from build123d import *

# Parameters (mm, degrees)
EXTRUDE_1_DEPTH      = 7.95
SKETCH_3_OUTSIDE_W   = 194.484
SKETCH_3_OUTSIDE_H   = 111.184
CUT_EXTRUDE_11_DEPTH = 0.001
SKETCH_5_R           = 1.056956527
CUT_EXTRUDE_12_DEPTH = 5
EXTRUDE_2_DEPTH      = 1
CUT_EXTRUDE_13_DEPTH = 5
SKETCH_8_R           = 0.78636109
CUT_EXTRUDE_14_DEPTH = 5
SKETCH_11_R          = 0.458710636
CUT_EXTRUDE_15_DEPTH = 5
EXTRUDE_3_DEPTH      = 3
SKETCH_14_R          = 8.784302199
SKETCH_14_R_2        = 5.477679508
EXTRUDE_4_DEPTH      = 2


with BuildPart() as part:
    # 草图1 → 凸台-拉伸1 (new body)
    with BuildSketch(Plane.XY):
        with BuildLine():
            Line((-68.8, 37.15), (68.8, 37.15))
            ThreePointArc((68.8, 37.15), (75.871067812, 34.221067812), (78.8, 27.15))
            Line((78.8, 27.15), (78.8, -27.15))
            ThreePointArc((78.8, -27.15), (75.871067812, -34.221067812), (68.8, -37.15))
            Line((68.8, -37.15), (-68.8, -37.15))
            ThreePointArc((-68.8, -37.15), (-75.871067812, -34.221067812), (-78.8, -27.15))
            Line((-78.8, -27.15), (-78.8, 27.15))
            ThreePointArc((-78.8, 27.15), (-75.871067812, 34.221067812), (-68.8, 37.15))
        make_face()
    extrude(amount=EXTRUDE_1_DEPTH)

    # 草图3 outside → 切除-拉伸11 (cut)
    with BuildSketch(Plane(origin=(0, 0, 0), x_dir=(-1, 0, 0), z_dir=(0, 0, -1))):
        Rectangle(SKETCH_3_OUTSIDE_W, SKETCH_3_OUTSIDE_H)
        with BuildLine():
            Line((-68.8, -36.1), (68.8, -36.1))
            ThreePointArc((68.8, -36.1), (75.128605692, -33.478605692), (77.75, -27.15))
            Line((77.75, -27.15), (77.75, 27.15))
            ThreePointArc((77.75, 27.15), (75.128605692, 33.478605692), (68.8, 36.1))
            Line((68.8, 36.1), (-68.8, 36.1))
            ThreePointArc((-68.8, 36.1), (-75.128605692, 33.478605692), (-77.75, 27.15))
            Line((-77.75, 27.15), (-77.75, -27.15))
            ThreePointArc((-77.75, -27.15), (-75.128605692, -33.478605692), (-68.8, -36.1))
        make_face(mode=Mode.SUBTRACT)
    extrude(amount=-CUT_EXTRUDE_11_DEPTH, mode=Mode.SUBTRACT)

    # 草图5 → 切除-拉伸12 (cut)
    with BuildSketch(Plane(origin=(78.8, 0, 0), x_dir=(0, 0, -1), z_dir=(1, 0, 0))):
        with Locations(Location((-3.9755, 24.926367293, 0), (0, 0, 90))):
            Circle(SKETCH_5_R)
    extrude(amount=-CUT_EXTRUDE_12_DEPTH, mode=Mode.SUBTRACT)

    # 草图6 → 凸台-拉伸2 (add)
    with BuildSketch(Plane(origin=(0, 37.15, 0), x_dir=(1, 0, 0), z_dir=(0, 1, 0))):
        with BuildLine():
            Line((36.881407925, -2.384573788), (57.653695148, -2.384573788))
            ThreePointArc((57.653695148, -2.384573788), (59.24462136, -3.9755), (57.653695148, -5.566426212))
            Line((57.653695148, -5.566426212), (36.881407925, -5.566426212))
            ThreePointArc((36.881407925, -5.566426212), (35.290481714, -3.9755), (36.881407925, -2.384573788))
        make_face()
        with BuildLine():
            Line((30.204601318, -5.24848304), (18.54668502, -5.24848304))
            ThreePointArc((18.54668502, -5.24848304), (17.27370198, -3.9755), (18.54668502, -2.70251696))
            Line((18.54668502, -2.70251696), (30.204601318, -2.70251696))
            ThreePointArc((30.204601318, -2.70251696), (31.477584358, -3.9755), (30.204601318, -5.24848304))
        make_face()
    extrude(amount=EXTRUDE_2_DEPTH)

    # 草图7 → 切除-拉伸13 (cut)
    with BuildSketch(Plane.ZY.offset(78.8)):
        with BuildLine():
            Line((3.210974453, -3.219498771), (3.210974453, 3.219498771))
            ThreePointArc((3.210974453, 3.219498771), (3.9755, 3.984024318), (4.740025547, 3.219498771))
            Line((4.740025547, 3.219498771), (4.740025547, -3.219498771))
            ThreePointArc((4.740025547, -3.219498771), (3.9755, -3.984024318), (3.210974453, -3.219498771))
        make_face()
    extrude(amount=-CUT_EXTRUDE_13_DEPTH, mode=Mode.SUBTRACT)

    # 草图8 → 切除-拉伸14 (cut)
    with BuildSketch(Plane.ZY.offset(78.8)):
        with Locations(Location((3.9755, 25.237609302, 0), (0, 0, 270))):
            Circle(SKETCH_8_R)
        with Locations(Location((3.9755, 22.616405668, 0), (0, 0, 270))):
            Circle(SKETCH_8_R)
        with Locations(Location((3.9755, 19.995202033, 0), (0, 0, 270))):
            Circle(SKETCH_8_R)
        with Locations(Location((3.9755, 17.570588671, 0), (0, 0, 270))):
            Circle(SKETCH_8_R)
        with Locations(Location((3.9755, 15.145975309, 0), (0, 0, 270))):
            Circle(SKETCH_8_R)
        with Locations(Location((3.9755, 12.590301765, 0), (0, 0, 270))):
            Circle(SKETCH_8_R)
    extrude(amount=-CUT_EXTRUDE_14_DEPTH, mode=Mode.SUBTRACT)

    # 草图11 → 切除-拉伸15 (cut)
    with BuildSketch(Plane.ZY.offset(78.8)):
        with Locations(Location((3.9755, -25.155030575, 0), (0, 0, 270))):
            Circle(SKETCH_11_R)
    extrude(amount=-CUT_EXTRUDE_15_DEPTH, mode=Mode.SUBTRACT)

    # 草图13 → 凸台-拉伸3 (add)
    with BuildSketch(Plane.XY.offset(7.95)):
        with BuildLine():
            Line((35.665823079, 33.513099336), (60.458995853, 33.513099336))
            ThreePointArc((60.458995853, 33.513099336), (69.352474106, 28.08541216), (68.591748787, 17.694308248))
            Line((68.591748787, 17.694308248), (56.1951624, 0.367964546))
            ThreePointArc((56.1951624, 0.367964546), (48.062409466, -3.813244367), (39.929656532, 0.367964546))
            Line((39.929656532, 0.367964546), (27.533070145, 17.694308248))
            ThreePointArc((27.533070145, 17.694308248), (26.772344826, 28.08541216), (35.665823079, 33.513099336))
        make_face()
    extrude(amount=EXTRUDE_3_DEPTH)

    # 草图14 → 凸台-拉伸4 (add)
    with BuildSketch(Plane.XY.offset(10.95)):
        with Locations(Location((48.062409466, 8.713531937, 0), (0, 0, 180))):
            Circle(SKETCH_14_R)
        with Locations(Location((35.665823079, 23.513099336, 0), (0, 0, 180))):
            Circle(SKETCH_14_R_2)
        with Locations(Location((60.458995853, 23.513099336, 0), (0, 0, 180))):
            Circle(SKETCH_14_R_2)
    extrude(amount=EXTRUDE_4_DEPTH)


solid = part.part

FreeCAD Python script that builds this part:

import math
import FreeCAD as App
import Part
import Sketcher

V = App.Vector
Q = App.Units.Quantity

doc = App.newDocument("Part")
body = doc.addObject("PartDesign::Body", "Body")

# Sketch on XY plane
sketch1 = doc.addObject("Sketcher::SketchObject", "Sketch")
body.addObject(sketch1)
sketch1.AttachmentSupport = (doc.XY_Plane, [""])
sketch1.MapMode = "FlatFace"
sketch1.addGeometry(Part.LineSegment(V(68.8, 37.15, 0), V(-68.8, 37.15, 0)), False)
sketch1.addGeometry(Part.ArcOfCircle(Part.Circle(V(-68.8, 27.15, 0), V(0, 0, 1), 10), math.radians(90), math.radians(180)), False)
sketch1.addGeometry(Part.LineSegment(V(-78.8, 27.15, 0), V(-78.8, -27.15, 0)), False)
sketch1.addGeometry(Part.ArcOfCircle(Part.Circle(V(-68.8, -27.15, 0), V(0, 0, 1), 10), math.radians(180), math.radians(270)), False)
sketch1.addGeometry(Part.LineSegment(V(-68.8, -37.15, 0), V(68.8, -37.15, 0)), False)
sketch1.addGeometry(Part.ArcOfCircle(Part.Circle(V(68.8, -27.15, 0), V(0, 0, 1), 10), math.radians(-90), math.radians(0)), False)
sketch1.addGeometry(Part.LineSegment(V(78.8, -27.15, 0), V(78.8, 27.15, 0)), False)
sketch1.addGeometry(Part.ArcOfCircle(Part.Circle(V(68.8, 27.15, 0), V(0, 0, 1), 10), math.radians(0), math.radians(90)), False)
sketch1.addConstraint(Sketcher.Constraint("Tangent", 0, 2, 1, 1))
sketch1.addConstraint(Sketcher.Constraint("Tangent", 1, 2, 2, 1))
sketch1.addConstraint(Sketcher.Constraint("Tangent", 2, 2, 3, 1))
sketch1.addConstraint(Sketcher.Constraint("Tangent", 3, 2, 4, 1))
sketch1.addConstraint(Sketcher.Constraint("Tangent", 4, 2, 5, 1))
sketch1.addConstraint(Sketcher.Constraint("Tangent", 5, 2, 6, 1))
sketch1.addConstraint(Sketcher.Constraint("Tangent", 6, 2, 7, 1))
sketch1.addConstraint(Sketcher.Constraint("Tangent", 7, 2, 0, 1))
sketch1.addConstraint(Sketcher.Constraint("Horizontal", 0))
sketch1.addConstraint(Sketcher.Constraint("Vertical", 2))
sketch1.addConstraint(Sketcher.Constraint("Horizontal", 4))
sketch1.addConstraint(Sketcher.Constraint("Vertical", 6))
sketch1.addConstraint(Sketcher.Constraint("Equal", 1, 3))
sketch1.addConstraint(Sketcher.Constraint("Equal", 3, 5))
sketch1.addConstraint(Sketcher.Constraint("Equal", 5, 7))
sketch1.addConstraint(Sketcher.Constraint("Symmetric", 1, 3, 5, 3, -1, 1))
sketch1.addConstraint(Sketcher.Constraint("Radius", 1, Q("10 mm")))
sketch1.addConstraint(Sketcher.Constraint("DistanceX", 0, 2, 0, 1, Q("137.6 mm")))
sketch1.addConstraint(Sketcher.Constraint("DistanceY", 2, 2, 2, 1, Q("54.3 mm")))
pad1 = doc.addObject("PartDesign::Pad", "Pad")
body.addObject(pad1)
pad1.Profile = sketch1
pad1.Length = 7.95

# Sketch on XY plane
sketch2 = doc.addObject("Sketcher::SketchObject", "Sketch001")
body.addObject(sketch2)
sketch2.AttachmentSupport = (doc.XY_Plane, [""])
sketch2.MapMode = "FlatFace"
sketch2.addGeometry(Part.LineSegment(V(97.242, 55.592, 0), V(97.242, -55.592, 0)), False)
sketch2.addGeometry(Part.LineSegment(V(97.242, -55.592, 0), V(-97.242, -55.592, 0)), False)
sketch2.addGeometry(Part.LineSegment(V(-97.242, -55.592, 0), V(-97.242, 55.592, 0)), False)
sketch2.addGeometry(Part.LineSegment(V(-97.242, 55.592, 0), V(97.242, 55.592, 0)), False)
sketch2.addGeometry(Part.LineSegment(V(-68.8, -36.1, 0), V(68.8, -36.1, 0)), False)
sketch2.addGeometry(Part.ArcOfCircle(Part.Circle(V(68.8, -27.15, 0), V(0, 0, 1), 8.95), math.radians(-90), math.radians(0)), False)
sketch2.addGeometry(Part.LineSegment(V(77.75, -27.15, 0), V(77.75, 27.15, 0)), False)
sketch2.addGeometry(Part.ArcOfCircle(Part.Circle(V(68.8, 27.15, 0), V(0, 0, 1), 8.95), math.radians(0), math.radians(90)), False)
sketch2.addGeometry(Part.LineSegment(V(68.8, 36.1, 0), V(-68.8, 36.1, 0)), False)
sketch2.addGeometry(Part.ArcOfCircle(Part.Circle(V(-68.8, 27.15, 0), V(0, 0, 1), 8.95), math.radians(90), math.radians(180)), False)
sketch2.addGeometry(Part.LineSegment(V(-77.75, 27.15, 0), V(-77.75, -27.15, 0)), False)
sketch2.addGeometry(Part.ArcOfCircle(Part.Circle(V(-68.8, -27.15, 0), V(0, 0, 1), 8.95), math.radians(180), math.radians(270)), False)
sketch2.addConstraint(Sketcher.Constraint("Coincident", 0, 2, 1, 1))
sketch2.addConstraint(Sketcher.Constraint("Coincident", 1, 2, 2, 1))
sketch2.addConstraint(Sketcher.Constraint("Coincident", 2, 2, 3, 1))
sketch2.addConstraint(Sketcher.Constraint("Coincident", 3, 2, 0, 1))
sketch2.addConstraint(Sketcher.Constraint("Tangent", 4, 2, 5, 1))
sketch2.addConstraint(Sketcher.Constraint("Tangent", 5, 2, 6, 1))
sketch2.addConstraint(Sketcher.Constraint("Tangent", 6, 2, 7, 1))
sketch2.addConstraint(Sketcher.Constraint("Tangent", 7, 2, 8, 1))
sketch2.addConstraint(Sketcher.Constraint("Tangent", 8, 2, 9, 1))
sketch2.addConstraint(Sketcher.Constraint("Tangent", 9, 2, 10, 1))
sketch2.addConstraint(Sketcher.Constraint("Tangent", 10, 2, 11, 1))
sketch2.addConstraint(Sketcher.Constraint("Tangent", 11, 2, 4, 1))
sketch2.addConstraint(Sketcher.Constraint("Vertical", 0))
sketch2.addConstraint(Sketcher.Constraint("Horizontal", 1))
sketch2.addConstraint(Sketcher.Constraint("Vertical", 2))
sketch2.addConstraint(Sketcher.Constraint("Horizontal", 3))
sketch2.addConstraint(Sketcher.Constraint("Horizontal", 4))
sketch2.addConstraint(Sketcher.Constraint("Vertical", 6))
sketch2.addConstraint(Sketcher.Constraint("Horizontal", 8))
sketch2.addConstraint(Sketcher.Constraint("Vertical", 10))
sketch2.addConstraint(Sketcher.Constraint("Equal", 5, 7))
sketch2.addConstraint(Sketcher.Constraint("Equal", 7, 9))
sketch2.addConstraint(Sketcher.Constraint("Equal", 9, 11))
sketch2.addConstraint(Sketcher.Constraint("Symmetric", 5, 3, 9, 3, -1, 1))
sketch2.addConstraint(Sketcher.Constraint("Symmetric", 0, 2, 2, 2, -1, 1))
sketch2.addConstraint(Sketcher.Constraint("Radius", 5, Q("8.95 mm")))
sketch2.addConstraint(Sketcher.Constraint("DistanceX", 4, 1, 4, 2, Q("137.6 mm")))
sketch2.addConstraint(Sketcher.Constraint("DistanceY", 6, 1, 6, 2, Q("54.3 mm")))
sketch2.addConstraint(Sketcher.Constraint("DistanceX", 1, 2, 1, 1, Q("194.484 mm")))
sketch2.addConstraint(Sketcher.Constraint("DistanceY", 0, 2, 0, 1, Q("111.184 mm")))
pocket1 = doc.addObject("PartDesign::Pocket", "Pocket")
body.addObject(pocket1)
pocket1.Profile = sketch2
pocket1.Length = 0.001
pocket1.Reversed = True

# Sketch on YZ plane
sketch3 = doc.addObject("Sketcher::SketchObject", "Sketch002")
body.addObject(sketch3)
sketch3.AttachmentSupport = (doc.YZ_Plane, [""])
sketch3.MapMode = "FlatFace"
sketch3.AttachmentOffset = App.Placement(V(0, 0, 78.8), App.Rotation())
sketch3.addGeometry(Part.Circle(V(24.926367, 3.9755, 0), V(0, 0, 1), 1.056957), False)
sketch3.addConstraint(Sketcher.Constraint("Diameter", 0, Q("2.113913 mm")))
sketch3.addConstraint(Sketcher.Constraint("DistanceY", -1, 1, 0, 3, Q("3.9755 mm")))
sketch3.addConstraint(Sketcher.Constraint("DistanceX", -1, 1, 0, 3, Q("24.926367 mm")))
pocket2 = doc.addObject("PartDesign::Pocket", "Pocket001")
body.addObject(pocket2)
pocket2.Profile = sketch3
pocket2.Length = 5

# Sketch on XZ plane
sketch4 = doc.addObject("Sketcher::SketchObject", "Sketch003")
body.addObject(sketch4)
sketch4.AttachmentSupport = (doc.XZ_Plane, [""])
sketch4.MapMode = "FlatFace"
sketch4.AttachmentOffset = App.Placement(V(0, 0, -37.15), App.Rotation())
sketch4.addGeometry(Part.LineSegment(V(57.653695, 2.384574, 0), V(36.881408, 2.384574, 0)), False)
sketch4.addGeometry(Part.ArcOfCircle(Part.Circle(V(36.881408, 3.9755, 0), V(0, 0, 1), 1.590926), math.radians(90), math.radians(270)), False)
sketch4.addGeometry(Part.LineSegment(V(36.881408, 5.566426, 0), V(57.653695, 5.566426, 0)), False)
sketch4.addGeometry(Part.ArcOfCircle(Part.Circle(V(57.653695, 3.9755, 0), V(0, 0, 1), 1.590926), math.radians(-90), math.radians(90)), False)
sketch4.addGeometry(Part.LineSegment(V(18.546685, 5.248483, 0), V(30.204601, 5.248483, 0)), False)
sketch4.addGeometry(Part.ArcOfCircle(Part.Circle(V(30.204601, 3.9755, 0), V(0, 0, 1), 1.272983), math.radians(-90), math.radians(90)), False)
sketch4.addGeometry(Part.LineSegment(V(30.204601, 2.702517, 0), V(18.546685, 2.702517, 0)), False)
sketch4.addGeometry(Part.ArcOfCircle(Part.Circle(V(18.546685, 3.9755, 0), V(0, 0, 1), 1.272983), math.radians(90), math.radians(270)), False)
sketch4.addConstraint(Sketcher.Constraint("Tangent", 0, 2, 1, 2))
sketch4.addConstraint(Sketcher.Constraint("Tangent", 1, 1, 2, 1))
sketch4.addConstraint(Sketcher.Constraint("Tangent", 2, 2, 3, 2))
sketch4.addConstraint(Sketcher.Constraint("Tangent", 3, 1, 0, 1))
sketch4.addConstraint(Sketcher.Constraint("Tangent", 4, 2, 5, 2))
sketch4.addConstraint(Sketcher.Constraint("Tangent", 5, 1, 6, 1))
sketch4.addConstraint(Sketcher.Constraint("Tangent", 6, 2, 7, 2))
sketch4.addConstraint(Sketcher.Constraint("Tangent", 7, 1, 4, 1))
sketch4.addConstraint(Sketcher.Constraint("Horizontal", 0))
sketch4.addConstraint(Sketcher.Constraint("Horizontal", 2))
sketch4.addConstraint(Sketcher.Constraint("Horizontal", 4))
sketch4.addConstraint(Sketcher.Constraint("Horizontal", 6))
sketch4.addConstraint(Sketcher.Constraint("Horizontal", 3, 3, 5, 3))
sketch4.addConstraint(Sketcher.Constraint("Radius", 1, Q("1.590926 mm")))
sketch4.addConstraint(Sketcher.Constraint("Radius", 5, Q("1.272983 mm")))
sketch4.addConstraint(Sketcher.Constraint("DistanceY", -1, 1, 1, 3, Q("3.9755 mm")))
sketch4.addConstraint(Sketcher.Constraint("DistanceX", -1, 1, 5, 3, Q("30.204601 mm")))
sketch4.addConstraint(Sketcher.Constraint("DistanceX", 0, 2, 0, 1, Q("20.772287 mm")))
sketch4.addConstraint(Sketcher.Constraint("DistanceX", 4, 1, 4, 2, Q("11.657916 mm")))
sketch4.addConstraint(Sketcher.Constraint("DistanceX", 7, 3, 3, 3, Q("39.10701 mm")))
pad2 = doc.addObject("PartDesign::Pad", "Pad001")
body.addObject(pad2)
pad2.Profile = sketch4
pad2.Length = 1
pad2.Reversed = True

# Sketch on YZ plane
sketch5 = doc.addObject("Sketcher::SketchObject", "Sketch004")
body.addObject(sketch5)
sketch5.AttachmentSupport = (doc.YZ_Plane, [""])
sketch5.MapMode = "FlatFace"
sketch5.AttachmentOffset = App.Placement(V(0, 0, -78.8), App.Rotation())
sketch5.addGeometry(Part.LineSegment(V(3.219499, 3.210974, 0), V(-3.219499, 3.210974, 0)), False)
sketch5.addGeometry(Part.ArcOfCircle(Part.Circle(V(-3.219499, 3.9755, 0), V(0, 0, 1), 0.764526), math.radians(90), math.radians(270)), False)
sketch5.addGeometry(Part.LineSegment(V(-3.219499, 4.740026, 0), V(3.219499, 4.740026, 0)), False)
sketch5.addGeometry(Part.ArcOfCircle(Part.Circle(V(3.219499, 3.9755, 0), V(0, 0, 1), 0.764526), math.radians(-90), math.radians(90)), False)
sketch5.addConstraint(Sketcher.Constraint("Tangent", 0, 2, 1, 2))
sketch5.addConstraint(Sketcher.Constraint("Tangent", 1, 1, 2, 1))
sketch5.addConstraint(Sketcher.Constraint("Tangent", 2, 2, 3, 2))
sketch5.addConstraint(Sketcher.Constraint("Tangent", 3, 1, 0, 1))
sketch5.addConstraint(Sketcher.Constraint("Horizontal", 0))
sketch5.addConstraint(Sketcher.Constraint("Horizontal", 2))
sketch5.addConstraint(Sketcher.Constraint("Radius", 1, Q("0.764526 mm")))
sketch5.addConstraint(Sketcher.Constraint("DistanceX", 1, 3, -1, 1, Q("3.219499 mm")))
sketch5.addConstraint(Sketcher.Constraint("DistanceY", -1, 1, 1, 3, Q("3.9755 mm")))
sketch5.addConstraint(Sketcher.Constraint("DistanceX", -1, 1, 3, 3, Q("3.219499 mm")))
pocket3 = doc.addObject("PartDesign::Pocket", "Pocket002")
body.addObject(pocket3)
pocket3.Profile = sketch5
pocket3.Length = 5
pocket3.Reversed = True

# Sketch on YZ plane
sketch6 = doc.addObject("Sketcher::SketchObject", "Sketch005")
body.addObject(sketch6)
sketch6.AttachmentSupport = (doc.YZ_Plane, [""])
sketch6.MapMode = "FlatFace"
sketch6.AttachmentOffset = App.Placement(V(0, 0, -78.8), App.Rotation())
sketch6.addGeometry(Part.Circle(V(25.237609, 3.9755, 0), V(0, 0, 1), 0.786361), False)
sketch6.addGeometry(Part.Circle(V(22.616406, 3.9755, 0), V(0, 0, 1), 0.786361), False)
sketch6.addGeometry(Part.Circle(V(19.995202, 3.9755, 0), V(0, 0, 1), 0.786361), False)
sketch6.addGeometry(Part.Circle(V(17.570589, 3.9755, 0), V(0, 0, 1), 0.786361), False)
sketch6.addGeometry(Part.Circle(V(15.145975, 3.9755, 0), V(0, 0, 1), 0.786361), False)
sketch6.addGeometry(Part.Circle(V(12.590302, 3.9755, 0), V(0, 0, 1), 0.786361), False)
sketch6.addConstraint(Sketcher.Constraint("Equal", 0, 1))
sketch6.addConstraint(Sketcher.Constraint("Equal", 1, 2))
sketch6.addConstraint(Sketcher.Constraint("Equal", 2, 3))
sketch6.addConstraint(Sketcher.Constraint("Equal", 3, 4))
sketch6.addConstraint(Sketcher.Constraint("Equal", 4, 5))
sketch6.addConstraint(Sketcher.Constraint("Horizontal", 0, 3, 1, 3))
sketch6.addConstraint(Sketcher.Constraint("Horizontal", 1, 3, 2, 3))
sketch6.addConstraint(Sketcher.Constraint("Horizontal", 2, 3, 3, 3))
sketch6.addConstraint(Sketcher.Constraint("Horizontal", 3, 3, 4, 3))
sketch6.addConstraint(Sketcher.Constraint("Horizontal", 4, 3, 5, 3))
sketch6.addConstraint(Sketcher.Constraint("Diameter", 0, Q("1.572722 mm")))
sketch6.addConstraint(Sketcher.Constraint("DistanceY", -1, 1, 0, 3, Q("3.9755 mm")))
sketch6.addConstraint(Sketcher.Constraint("DistanceX", -1, 1, 5, 3, Q("12.590302 mm")))
sketch6.addConstraint(Sketcher.Constraint("DistanceX", 5, 3, 2, 3, Q("7.4049 mm")))
sketch6.addConstraint(Sketcher.Constraint("DistanceX", -1, 1, 0, 3, Q("25.237609 mm")))
sketch6.addConstraint(Sketcher.Constraint("DistanceX", -1, 1, 3, 3, Q("17.570589 mm")))
sketch6.addConstraint(Sketcher.Constraint("DistanceX", 4, 3, 1, 3, Q("7.47043 mm")))
sketch6.addConstraint(Sketcher.Constraint("DistanceX", -1, 1, 1, 3, Q("22.616406 mm")))
pocket4 = doc.addObject("PartDesign::Pocket", "Pocket003")
body.addObject(pocket4)
pocket4.Profile = sketch6
pocket4.Length = 5
pocket4.Reversed = True

# Sketch on YZ plane
sketch7 = doc.addObject("Sketcher::SketchObject", "Sketch006")
body.addObject(sketch7)
sketch7.AttachmentSupport = (doc.YZ_Plane, [""])
sketch7.MapMode = "FlatFace"
sketch7.AttachmentOffset = App.Placement(V(0, 0, -78.8), App.Rotation())
sketch7.addGeometry(Part.Circle(V(-25.155031, 3.9755, 0), V(0, 0, 1), 0.458711), False)
sketch7.addConstraint(Sketcher.Constraint("Diameter", 0, Q("0.917421 mm")))
sketch7.addConstraint(Sketcher.Constraint("DistanceY", -1, 1, 0, 3, Q("3.9755 mm")))
sketch7.addConstraint(Sketcher.Constraint("DistanceX", 0, 3, -1, 1, Q("25.155031 mm")))
pocket5 = doc.addObject("PartDesign::Pocket", "Pocket004")
body.addObject(pocket5)
pocket5.Profile = sketch7
pocket5.Length = 5
pocket5.Reversed = True

# Sketch on XY plane
sketch8 = doc.addObject("Sketcher::SketchObject", "Sketch007")
body.addObject(sketch8)
sketch8.AttachmentSupport = (doc.XY_Plane, [""])
sketch8.MapMode = "FlatFace"
sketch8.AttachmentOffset = App.Placement(V(0, 0, 7.95), App.Rotation())
sketch8.addGeometry(Part.LineSegment(V(60.458996, 33.513099, 0), V(35.665823, 33.513099, 0)), False)
sketch8.addGeometry(Part.ArcOfCircle(Part.Circle(V(35.665823, 23.513099, 0), V(0, 0, 1), 10), math.radians(90), math.radians(215.582818)), False)
sketch8.addGeometry(Part.LineSegment(V(27.53307, 17.694308, 0), V(39.929657, 0.367965, 0)), False)
sketch8.addGeometry(Part.ArcOfCircle(Part.Circle(V(48.062409, 6.186756, 0), V(0, 0, 1), 10), math.radians(-144.417182), math.radians(-35.582818)), False)
sketch8.addGeometry(Part.LineSegment(V(56.195162, 0.367965, 0), V(68.591749, 17.694308, 0)), False)
sketch8.addGeometry(Part.ArcOfCircle(Part.Circle(V(60.458996, 23.513099, 0), V(0, 0, 1), 10), math.radians(-35.582818), math.radians(90)), False)
sketch8.addConstraint(Sketcher.Constraint("Tangent", 0, 2, 1, 1))
sketch8.addConstraint(Sketcher.Constraint("Tangent", 1, 2, 2, 1))
sketch8.addConstraint(Sketcher.Constraint("Tangent", 2, 2, 3, 1))
sketch8.addConstraint(Sketcher.Constraint("Tangent", 3, 2, 4, 1))
sketch8.addConstraint(Sketcher.Constraint("Tangent", 4, 2, 5, 1))
sketch8.addConstraint(Sketcher.Constraint("Tangent", 5, 2, 0, 1))
sketch8.addConstraint(Sketcher.Constraint("Horizontal", 0))
sketch8.addConstraint(Sketcher.Constraint("Equal", 1, 3))
sketch8.addConstraint(Sketcher.Constraint("Equal", 3, 5))
sketch8.addConstraint(Sketcher.Constraint("Horizontal", 2, 2, 3, 2))
sketch8.addConstraint(Sketcher.Constraint("Radius", 1, Q("10 mm")))
sketch8.addConstraint(Sketcher.Constraint("Distance", 2, Q("21.304402 mm")))
sketch8.addConstraint(Sketcher.Constraint("DistanceY", -1, 1, 1, 3, Q("23.513099 mm")))
sketch8.addConstraint(Sketcher.Constraint("DistanceX", 0, 2, 0, 1, Q("24.793173 mm")))
sketch8.addConstraint(Sketcher.Constraint("DistanceX", -1, 1, 3, 3, Q("48.062409 mm")))
pad3 = doc.addObject("PartDesign::Pad", "Pad002")
body.addObject(pad3)
pad3.Profile = sketch8
pad3.Length = 3

# Sketch on XY plane
sketch9 = doc.addObject("Sketcher::SketchObject", "Sketch008")
body.addObject(sketch9)
sketch9.AttachmentSupport = (doc.XY_Plane, [""])
sketch9.MapMode = "FlatFace"
sketch9.AttachmentOffset = App.Placement(V(0, 0, 10.95), App.Rotation())
sketch9.addGeometry(Part.Circle(V(48.062409, 8.713532, 0), V(0, 0, 1), 8.784302), False)
sketch9.addGeometry(Part.Circle(V(35.665823, 23.513099, 0), V(0, 0, 1), 5.47768), False)
sketch9.addGeometry(Part.Circle(V(60.458996, 23.513099, 0), V(0, 0, 1), 5.47768), False)
sketch9.addConstraint(Sketcher.Constraint("Equal", 1, 2))
sketch9.addConstraint(Sketcher.Constraint("Horizontal", 1, 3, 2, 3))
sketch9.addConstraint(Sketcher.Constraint("Diameter", 1, Q("10.955359 mm")))
sketch9.addConstraint(Sketcher.Constraint("Diameter", 0, Q("17.568604 mm")))
sketch9.addConstraint(Sketcher.Constraint("DistanceY", -1, 1, 1, 3, Q("23.513099 mm")))
sketch9.addConstraint(Sketcher.Constraint("DistanceX", -1, 1, 0, 3, Q("48.062409 mm")))
sketch9.addConstraint(Sketcher.Constraint("DistanceY", -1, 1, 0, 3, Q("8.713532 mm")))
sketch9.addConstraint(Sketcher.Constraint("DistanceX", -1, 1, 1, 3, Q("35.665823 mm")))
sketch9.addConstraint(Sketcher.Constraint("DistanceX", -1, 1, 2, 3, Q("60.458996 mm")))
pad4 = doc.addObject("PartDesign::Pad", "Pad003")
body.addObject(pad4)
pad4.Profile = sketch9
pad4.Length = 2

doc.recompute()
